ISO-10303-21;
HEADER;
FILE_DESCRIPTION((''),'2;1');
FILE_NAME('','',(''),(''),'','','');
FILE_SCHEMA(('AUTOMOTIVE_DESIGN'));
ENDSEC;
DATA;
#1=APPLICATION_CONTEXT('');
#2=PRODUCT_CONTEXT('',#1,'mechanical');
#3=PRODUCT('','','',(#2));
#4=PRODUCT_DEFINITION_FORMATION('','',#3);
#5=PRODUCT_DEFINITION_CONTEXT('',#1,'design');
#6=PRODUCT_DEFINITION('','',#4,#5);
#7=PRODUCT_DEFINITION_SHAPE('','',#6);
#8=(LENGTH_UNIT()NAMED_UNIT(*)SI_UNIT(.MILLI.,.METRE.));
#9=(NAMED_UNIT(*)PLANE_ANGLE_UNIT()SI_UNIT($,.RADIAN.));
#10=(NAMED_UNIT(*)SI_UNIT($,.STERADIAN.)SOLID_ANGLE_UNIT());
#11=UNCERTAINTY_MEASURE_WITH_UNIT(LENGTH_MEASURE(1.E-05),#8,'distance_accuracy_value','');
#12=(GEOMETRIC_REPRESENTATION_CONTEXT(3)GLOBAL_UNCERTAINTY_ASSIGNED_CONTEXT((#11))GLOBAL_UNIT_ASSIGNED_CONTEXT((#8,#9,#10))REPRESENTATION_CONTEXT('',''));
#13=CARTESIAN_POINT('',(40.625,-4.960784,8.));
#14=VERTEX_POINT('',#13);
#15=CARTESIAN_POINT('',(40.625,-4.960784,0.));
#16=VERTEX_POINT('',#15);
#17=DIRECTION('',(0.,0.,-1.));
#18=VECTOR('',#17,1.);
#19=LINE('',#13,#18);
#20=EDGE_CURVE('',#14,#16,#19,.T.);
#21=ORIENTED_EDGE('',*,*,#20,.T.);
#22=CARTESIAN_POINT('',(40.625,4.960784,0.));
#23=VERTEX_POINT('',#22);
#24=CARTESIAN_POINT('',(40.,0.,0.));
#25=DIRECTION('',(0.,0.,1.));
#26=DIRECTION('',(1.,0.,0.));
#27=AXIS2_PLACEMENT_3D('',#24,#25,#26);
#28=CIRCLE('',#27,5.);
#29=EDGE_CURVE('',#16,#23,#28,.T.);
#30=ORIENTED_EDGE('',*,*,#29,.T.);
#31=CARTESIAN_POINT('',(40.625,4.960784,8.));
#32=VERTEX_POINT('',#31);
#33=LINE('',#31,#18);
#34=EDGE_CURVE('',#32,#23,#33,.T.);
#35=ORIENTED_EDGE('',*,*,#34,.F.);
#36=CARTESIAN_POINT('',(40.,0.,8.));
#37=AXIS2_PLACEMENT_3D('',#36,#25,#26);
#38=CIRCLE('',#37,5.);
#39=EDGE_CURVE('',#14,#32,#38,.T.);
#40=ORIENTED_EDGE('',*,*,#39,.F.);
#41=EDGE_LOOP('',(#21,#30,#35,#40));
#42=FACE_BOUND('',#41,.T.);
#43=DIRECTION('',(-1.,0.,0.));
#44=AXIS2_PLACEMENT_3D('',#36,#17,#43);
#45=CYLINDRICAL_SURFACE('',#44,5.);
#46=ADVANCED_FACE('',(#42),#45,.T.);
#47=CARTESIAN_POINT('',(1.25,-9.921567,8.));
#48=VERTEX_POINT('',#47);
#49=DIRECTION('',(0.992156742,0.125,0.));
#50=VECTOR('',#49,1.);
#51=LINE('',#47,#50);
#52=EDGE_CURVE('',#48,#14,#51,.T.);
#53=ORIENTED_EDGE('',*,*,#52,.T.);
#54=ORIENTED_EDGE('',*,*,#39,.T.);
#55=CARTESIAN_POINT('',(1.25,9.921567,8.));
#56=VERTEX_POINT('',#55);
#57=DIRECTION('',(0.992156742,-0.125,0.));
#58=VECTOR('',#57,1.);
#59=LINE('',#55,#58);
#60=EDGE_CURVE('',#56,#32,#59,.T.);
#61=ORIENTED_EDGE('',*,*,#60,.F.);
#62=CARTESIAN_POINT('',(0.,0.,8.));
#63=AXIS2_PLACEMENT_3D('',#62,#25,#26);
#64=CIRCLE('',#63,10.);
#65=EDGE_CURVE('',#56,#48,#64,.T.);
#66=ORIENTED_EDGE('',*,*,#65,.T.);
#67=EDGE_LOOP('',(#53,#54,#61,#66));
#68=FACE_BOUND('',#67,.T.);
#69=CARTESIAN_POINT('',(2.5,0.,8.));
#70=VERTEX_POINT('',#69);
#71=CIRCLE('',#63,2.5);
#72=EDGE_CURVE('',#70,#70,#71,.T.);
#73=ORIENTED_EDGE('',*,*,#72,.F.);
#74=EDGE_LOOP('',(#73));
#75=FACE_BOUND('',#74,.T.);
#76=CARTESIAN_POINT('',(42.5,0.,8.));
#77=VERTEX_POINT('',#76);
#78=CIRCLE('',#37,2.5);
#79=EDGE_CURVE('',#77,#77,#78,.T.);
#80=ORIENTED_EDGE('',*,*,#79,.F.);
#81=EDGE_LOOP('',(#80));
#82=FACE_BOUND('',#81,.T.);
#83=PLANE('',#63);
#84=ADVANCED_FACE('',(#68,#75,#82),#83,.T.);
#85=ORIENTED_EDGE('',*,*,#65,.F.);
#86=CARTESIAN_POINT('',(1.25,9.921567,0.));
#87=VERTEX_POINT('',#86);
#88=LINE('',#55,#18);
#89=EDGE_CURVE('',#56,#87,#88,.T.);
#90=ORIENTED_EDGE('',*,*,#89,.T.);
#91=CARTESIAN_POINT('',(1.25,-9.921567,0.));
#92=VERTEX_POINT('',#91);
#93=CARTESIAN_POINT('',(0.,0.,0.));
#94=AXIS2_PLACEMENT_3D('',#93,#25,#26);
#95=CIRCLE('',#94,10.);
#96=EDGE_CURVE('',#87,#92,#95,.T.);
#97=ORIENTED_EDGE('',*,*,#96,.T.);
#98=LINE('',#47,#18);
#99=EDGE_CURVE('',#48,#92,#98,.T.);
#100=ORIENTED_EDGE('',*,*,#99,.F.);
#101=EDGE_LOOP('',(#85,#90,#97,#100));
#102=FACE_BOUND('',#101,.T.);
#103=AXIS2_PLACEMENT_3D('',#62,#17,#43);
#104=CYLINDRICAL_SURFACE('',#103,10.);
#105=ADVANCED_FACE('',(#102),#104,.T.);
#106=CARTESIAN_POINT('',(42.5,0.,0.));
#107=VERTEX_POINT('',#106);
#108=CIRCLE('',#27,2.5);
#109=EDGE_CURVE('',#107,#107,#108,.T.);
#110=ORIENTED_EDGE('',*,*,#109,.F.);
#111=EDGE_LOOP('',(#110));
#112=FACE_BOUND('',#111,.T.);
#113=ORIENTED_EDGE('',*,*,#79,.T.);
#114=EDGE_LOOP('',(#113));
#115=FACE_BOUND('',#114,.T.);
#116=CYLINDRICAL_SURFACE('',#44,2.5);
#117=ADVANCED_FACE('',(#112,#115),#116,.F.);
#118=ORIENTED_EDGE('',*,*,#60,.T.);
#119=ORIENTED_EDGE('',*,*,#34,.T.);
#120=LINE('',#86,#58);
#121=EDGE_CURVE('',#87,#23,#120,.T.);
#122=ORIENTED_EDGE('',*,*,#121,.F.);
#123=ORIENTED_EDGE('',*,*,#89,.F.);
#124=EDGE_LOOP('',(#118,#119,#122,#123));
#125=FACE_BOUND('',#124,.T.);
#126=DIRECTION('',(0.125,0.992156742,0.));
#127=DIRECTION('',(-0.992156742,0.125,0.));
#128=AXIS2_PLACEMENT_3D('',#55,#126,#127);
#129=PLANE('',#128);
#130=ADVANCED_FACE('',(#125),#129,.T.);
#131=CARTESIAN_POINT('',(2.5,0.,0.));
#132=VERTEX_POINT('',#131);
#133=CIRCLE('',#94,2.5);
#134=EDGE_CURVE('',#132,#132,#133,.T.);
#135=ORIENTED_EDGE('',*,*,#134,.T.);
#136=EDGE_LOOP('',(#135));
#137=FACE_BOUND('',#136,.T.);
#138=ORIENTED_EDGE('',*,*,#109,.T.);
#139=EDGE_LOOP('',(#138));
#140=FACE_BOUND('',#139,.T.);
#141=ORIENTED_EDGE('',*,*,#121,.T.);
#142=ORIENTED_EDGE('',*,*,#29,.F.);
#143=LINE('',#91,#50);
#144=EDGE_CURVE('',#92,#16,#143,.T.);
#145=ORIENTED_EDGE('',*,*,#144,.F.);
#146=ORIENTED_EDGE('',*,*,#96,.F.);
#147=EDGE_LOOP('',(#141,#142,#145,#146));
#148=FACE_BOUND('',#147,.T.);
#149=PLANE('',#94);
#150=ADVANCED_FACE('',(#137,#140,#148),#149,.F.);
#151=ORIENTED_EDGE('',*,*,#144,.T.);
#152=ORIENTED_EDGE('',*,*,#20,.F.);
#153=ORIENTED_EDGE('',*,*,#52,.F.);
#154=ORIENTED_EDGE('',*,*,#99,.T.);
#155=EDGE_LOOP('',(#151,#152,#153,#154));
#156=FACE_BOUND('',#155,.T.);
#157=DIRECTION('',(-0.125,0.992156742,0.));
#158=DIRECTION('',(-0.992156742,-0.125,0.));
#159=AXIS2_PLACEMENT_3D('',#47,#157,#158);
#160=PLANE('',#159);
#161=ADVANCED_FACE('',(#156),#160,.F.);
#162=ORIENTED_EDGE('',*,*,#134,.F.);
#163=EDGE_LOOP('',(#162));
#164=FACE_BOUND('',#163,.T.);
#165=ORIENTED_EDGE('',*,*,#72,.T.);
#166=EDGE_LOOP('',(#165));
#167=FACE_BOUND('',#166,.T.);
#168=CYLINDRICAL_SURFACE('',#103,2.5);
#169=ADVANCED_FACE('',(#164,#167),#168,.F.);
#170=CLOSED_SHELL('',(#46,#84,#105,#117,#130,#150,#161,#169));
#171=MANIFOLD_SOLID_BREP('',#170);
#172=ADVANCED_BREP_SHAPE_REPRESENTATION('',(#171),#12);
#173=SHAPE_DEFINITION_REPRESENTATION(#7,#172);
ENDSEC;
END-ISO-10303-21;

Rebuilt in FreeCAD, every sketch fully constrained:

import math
import FreeCAD as App
import Part
import Sketcher

V = App.Vector
Q = App.Units.Quantity

doc = App.newDocument("Part")
body = doc.addObject("PartDesign::Body", "Body")

# Sketch on XY plane
sketch1 = body.newObject("Sketcher::SketchObject", "Sketch")
sketch1.AttachmentSupport = (doc.getObject("XY_Plane"), [""])
sketch1.MapMode = "FlatFace"
sketch1.addGeometry([
    Part.LineSegment(V(40.6, 5, 0), V(1.2, 9.9, 0)),  # 0
    Part.ArcOfCircle(Part.Circle(V(0, 0, 0), V(0, 0, 1), 10), math.radians(83), math.radians(277)),  # 1
    Part.LineSegment(V(1.2, -9.9, 0), V(40.6, -5, 0)),  # 2
    Part.ArcOfCircle(Part.Circle(V(40, 0, 0), V(0, 0, 1), 5), math.radians(-83), math.radians(83)),  # 3
    Part.Circle(V(0, 0, 0), V(0, 0, 1), 2.5),  # 4
    Part.Circle(V(40, 0, 0), V(0, 0, 1), 2.5),  # 5
], False)
sketch1.addConstraint([
    Sketcher.Constraint("Tangent", 0, 2, 1, 1),
    Sketcher.Constraint("Tangent", 1, 2, 2, 1),
    Sketcher.Constraint("Tangent", 2, 2, 3, 1),
    Sketcher.Constraint("Tangent", 3, 2, 0, 1),
    Sketcher.Constraint("Coincident", 1, 3, -1, 1),
    Sketcher.Constraint("Coincident", 4, 3, -1, 1),
    Sketcher.Constraint("Coincident", 5, 3, 3, 3),
    Sketcher.Constraint("Equal", 4, 5),
    Sketcher.Constraint("PointOnObject", 3, 3, -1),
    Sketcher.Constraint("Diameter", 4, Q("5 mm")),
    Sketcher.Constraint("Radius", 1, Q("10 mm")),
    Sketcher.Constraint("Radius", 3, Q("5 mm")),
    Sketcher.Constraint("DistanceX", -1, 1, 3, 3, Q("40 mm")),
])
pad1 = body.newObject("PartDesign::Pad", "Pad")
pad1.Profile = sketch1
pad1.Length = 8

doc.recompute()
